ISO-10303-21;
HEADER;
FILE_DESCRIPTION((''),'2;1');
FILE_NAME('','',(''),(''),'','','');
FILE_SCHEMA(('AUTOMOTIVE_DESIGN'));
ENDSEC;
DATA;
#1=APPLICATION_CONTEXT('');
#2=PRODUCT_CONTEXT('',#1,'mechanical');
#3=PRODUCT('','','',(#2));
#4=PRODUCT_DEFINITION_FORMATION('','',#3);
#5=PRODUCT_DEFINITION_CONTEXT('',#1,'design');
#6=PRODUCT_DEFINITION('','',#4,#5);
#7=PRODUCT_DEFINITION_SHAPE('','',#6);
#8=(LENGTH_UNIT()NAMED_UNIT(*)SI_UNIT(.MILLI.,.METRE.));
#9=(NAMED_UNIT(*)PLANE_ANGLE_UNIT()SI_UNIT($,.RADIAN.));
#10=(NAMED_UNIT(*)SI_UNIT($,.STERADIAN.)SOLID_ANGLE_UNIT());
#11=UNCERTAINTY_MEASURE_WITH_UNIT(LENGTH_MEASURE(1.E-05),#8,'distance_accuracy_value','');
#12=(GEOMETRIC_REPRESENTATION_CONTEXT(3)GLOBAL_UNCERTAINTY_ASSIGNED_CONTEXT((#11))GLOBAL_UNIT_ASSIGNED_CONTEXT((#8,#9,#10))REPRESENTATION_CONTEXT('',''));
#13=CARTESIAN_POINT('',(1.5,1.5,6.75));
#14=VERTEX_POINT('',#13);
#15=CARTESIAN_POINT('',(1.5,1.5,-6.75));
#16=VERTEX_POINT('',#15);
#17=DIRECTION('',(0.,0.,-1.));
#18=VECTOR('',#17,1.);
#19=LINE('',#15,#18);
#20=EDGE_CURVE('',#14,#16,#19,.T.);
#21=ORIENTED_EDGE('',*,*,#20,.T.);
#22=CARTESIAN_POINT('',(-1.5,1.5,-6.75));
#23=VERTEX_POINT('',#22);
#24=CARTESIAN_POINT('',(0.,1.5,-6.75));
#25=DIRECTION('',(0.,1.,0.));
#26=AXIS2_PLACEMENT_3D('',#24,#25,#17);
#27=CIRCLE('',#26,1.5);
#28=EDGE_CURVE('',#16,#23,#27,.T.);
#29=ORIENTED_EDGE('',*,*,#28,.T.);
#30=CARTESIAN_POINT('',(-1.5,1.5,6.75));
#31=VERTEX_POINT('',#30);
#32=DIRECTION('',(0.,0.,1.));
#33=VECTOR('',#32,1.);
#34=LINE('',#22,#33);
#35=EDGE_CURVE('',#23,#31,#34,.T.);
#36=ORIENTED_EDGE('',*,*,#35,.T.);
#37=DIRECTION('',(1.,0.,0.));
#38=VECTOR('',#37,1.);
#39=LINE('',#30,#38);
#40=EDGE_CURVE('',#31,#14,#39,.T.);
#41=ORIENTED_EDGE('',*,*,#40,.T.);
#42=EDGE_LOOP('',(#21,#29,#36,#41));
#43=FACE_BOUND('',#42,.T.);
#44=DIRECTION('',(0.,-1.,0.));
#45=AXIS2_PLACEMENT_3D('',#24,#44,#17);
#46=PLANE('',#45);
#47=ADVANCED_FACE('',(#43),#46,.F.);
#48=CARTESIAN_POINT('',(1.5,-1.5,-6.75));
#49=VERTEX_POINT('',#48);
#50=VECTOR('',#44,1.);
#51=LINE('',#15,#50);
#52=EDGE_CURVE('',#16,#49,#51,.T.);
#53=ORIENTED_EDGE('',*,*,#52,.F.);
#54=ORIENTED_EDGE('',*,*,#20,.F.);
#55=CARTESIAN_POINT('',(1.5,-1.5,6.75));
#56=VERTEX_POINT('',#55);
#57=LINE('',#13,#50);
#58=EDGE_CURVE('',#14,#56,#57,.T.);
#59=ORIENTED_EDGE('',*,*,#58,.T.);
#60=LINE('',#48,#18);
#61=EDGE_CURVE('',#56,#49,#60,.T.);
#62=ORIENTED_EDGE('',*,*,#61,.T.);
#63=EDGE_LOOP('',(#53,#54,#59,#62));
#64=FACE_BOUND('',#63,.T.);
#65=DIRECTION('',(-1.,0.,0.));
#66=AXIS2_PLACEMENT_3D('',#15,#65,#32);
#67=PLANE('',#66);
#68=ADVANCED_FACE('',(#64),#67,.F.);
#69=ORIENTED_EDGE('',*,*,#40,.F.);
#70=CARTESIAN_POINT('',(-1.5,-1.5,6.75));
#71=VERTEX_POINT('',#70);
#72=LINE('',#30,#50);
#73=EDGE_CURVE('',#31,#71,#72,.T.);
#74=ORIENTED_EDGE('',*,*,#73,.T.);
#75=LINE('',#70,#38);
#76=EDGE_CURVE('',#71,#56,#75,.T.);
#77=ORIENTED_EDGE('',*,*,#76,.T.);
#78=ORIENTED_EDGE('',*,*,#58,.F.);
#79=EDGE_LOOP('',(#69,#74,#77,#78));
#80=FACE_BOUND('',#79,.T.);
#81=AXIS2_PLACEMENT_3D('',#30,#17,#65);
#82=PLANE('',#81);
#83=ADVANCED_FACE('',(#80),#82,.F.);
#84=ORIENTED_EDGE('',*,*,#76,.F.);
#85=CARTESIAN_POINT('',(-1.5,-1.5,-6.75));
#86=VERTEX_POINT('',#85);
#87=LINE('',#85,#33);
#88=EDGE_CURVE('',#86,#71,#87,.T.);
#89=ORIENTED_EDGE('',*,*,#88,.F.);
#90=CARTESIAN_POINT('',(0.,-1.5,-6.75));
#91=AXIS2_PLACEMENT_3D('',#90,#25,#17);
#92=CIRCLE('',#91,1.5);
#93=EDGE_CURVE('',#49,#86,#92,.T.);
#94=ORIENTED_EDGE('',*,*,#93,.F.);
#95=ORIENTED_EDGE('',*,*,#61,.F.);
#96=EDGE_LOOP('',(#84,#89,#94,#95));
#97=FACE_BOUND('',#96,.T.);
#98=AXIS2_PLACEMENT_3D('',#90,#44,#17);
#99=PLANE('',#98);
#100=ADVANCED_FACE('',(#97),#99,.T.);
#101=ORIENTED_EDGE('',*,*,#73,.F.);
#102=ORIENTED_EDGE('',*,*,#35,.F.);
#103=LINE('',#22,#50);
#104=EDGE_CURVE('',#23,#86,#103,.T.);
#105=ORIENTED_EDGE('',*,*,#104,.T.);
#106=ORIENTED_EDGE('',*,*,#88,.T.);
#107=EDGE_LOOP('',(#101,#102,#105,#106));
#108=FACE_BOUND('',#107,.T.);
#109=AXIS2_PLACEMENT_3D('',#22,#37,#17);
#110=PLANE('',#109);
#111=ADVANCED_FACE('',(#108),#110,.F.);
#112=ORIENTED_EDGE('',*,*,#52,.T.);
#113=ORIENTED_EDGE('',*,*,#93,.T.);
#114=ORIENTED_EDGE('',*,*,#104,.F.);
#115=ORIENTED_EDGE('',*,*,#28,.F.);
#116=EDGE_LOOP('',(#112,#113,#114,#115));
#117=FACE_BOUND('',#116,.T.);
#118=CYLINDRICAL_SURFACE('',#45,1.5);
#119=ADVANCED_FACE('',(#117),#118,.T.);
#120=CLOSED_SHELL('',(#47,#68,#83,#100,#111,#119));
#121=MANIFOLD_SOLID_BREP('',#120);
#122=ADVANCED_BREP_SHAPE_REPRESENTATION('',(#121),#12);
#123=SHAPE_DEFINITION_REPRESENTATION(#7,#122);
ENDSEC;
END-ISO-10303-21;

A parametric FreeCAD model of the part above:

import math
import FreeCAD as App
import Part
import Sketcher

doc = App.newDocument("Part")
body = doc.addObject("PartDesign::Body", "Body")

sketch1 = body.newObject("Sketcher::SketchObject", "Sketch")
sketch1.AttachmentSupport = (doc.getObject("XZ_Plane"), [""])
sketch1.MapMode = "FlatFace"
sketch1.addGeometry(Part.LineSegment(App.Vector(-1.5, -6.75, 0), App.Vector(-1.5, 6.75, 0)), False)
sketch1.addGeometry(Part.LineSegment(App.Vector(-1.5, 6.75, 0), App.Vector(1.5, 6.75, 0)), False)
sketch1.addGeometry(Part.LineSegment(App.Vector(1.5, 6.75, 0), App.Vector(1.5, -6.75, 0)), False)
sketch1.addGeometry(Part.ArcOfCircle(Part.Circle(App.Vector(0, -6.75, 0), App.Vector(0, 0, 1), 1.5), math.radians(180), math.radians(360)), False)
sketch1.addConstraint(Sketcher.Constraint("Coincident", 0, 2, 1, 1))
sketch1.addConstraint(Sketcher.Constraint("Coincident", 1, 2, 2, 1))
sketch1.addConstraint(Sketcher.Constraint("Tangent", 2, 2, 3, 2))
sketch1.addConstraint(Sketcher.Constraint("Tangent", 3, 1, 0, 1))
sketch1.addConstraint(Sketcher.Constraint("Vertical", 0))
sketch1.addConstraint(Sketcher.Constraint("Horizontal", 1))
sketch1.addConstraint(Sketcher.Constraint("Vertical", 2))
sketch1.addConstraint(Sketcher.Constraint("Symmetric", 0, 2, 2, 2, -1, 1))
sketch1.addConstraint(Sketcher.Constraint("Radius", 3, 1.5))
sketch1.addConstraint(Sketcher.Constraint("DistanceY", 0, 1, 0, 2, 13.5))
pad1 = body.newObject("PartDesign::Pad", "Pad")
pad1.Profile = sketch1
pad1.Length = 3
pad1.Midplane = True

doc.recompute()
